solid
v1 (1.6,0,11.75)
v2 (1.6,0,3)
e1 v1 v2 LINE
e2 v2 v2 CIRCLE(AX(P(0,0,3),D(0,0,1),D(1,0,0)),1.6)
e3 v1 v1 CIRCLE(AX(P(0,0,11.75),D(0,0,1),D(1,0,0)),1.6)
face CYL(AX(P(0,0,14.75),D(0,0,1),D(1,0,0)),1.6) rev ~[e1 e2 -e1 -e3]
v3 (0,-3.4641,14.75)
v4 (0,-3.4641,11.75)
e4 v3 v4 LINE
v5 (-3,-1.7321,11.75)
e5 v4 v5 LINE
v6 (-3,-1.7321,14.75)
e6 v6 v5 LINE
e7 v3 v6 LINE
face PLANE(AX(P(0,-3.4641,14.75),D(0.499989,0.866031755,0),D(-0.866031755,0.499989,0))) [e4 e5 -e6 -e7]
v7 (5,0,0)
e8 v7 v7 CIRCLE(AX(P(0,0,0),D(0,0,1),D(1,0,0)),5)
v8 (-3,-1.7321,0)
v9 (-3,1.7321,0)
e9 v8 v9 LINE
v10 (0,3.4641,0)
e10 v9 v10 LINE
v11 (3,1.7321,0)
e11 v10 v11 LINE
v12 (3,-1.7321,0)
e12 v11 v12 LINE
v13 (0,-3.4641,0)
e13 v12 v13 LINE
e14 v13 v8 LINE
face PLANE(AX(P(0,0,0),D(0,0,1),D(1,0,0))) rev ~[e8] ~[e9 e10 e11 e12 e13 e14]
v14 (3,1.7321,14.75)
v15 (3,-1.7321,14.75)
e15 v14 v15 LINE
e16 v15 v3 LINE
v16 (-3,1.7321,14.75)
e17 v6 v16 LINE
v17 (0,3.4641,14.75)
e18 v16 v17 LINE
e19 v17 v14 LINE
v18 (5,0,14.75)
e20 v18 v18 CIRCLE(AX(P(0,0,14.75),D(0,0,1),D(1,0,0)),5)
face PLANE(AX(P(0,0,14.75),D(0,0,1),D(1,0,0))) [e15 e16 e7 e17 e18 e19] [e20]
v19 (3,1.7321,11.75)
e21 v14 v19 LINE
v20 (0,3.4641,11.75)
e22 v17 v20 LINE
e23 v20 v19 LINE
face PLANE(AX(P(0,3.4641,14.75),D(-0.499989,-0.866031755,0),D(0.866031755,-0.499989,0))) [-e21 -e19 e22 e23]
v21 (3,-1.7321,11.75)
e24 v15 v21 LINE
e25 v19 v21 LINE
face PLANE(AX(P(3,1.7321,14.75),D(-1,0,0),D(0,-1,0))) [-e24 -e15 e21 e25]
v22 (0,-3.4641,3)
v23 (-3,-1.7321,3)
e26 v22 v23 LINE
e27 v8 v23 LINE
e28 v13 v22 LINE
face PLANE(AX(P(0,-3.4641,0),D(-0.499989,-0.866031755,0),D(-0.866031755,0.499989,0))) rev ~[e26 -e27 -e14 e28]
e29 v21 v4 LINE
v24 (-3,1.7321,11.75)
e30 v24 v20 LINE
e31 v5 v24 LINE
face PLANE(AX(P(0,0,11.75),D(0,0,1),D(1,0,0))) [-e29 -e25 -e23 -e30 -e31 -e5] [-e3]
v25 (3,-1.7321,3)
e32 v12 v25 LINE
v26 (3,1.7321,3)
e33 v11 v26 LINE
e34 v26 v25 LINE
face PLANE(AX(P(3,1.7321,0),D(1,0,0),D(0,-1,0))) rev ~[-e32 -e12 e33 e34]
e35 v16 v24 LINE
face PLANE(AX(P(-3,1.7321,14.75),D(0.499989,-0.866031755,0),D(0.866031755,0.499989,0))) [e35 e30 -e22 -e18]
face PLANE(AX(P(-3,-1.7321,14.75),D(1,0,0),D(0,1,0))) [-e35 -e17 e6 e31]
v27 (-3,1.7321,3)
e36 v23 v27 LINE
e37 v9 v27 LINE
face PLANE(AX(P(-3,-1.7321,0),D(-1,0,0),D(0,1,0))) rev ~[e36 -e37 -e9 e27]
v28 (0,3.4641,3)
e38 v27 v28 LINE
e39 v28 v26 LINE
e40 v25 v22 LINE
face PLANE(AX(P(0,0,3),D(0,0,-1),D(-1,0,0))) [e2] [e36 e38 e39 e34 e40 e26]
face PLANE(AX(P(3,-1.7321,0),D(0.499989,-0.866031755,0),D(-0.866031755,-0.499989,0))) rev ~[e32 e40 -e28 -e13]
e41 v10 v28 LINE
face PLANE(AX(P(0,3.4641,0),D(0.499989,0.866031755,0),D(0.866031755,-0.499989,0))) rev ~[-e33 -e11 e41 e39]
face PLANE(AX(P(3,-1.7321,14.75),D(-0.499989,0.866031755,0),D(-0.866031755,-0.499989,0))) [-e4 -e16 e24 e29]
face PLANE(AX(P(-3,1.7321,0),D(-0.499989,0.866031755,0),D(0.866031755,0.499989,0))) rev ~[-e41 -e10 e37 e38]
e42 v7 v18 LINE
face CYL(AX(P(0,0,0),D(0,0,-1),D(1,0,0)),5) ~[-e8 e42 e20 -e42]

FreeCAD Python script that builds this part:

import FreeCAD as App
import Part
import Sketcher
from FreeCAD import Vector
Q = App.Units.Quantity


def add_polygon(sketch, points):
    """Adds a closed chain of lines whose ends are joined by coincident constraints."""
    first, n = sketch.GeometryCount, len(points)
    for a, b in zip(points, points[1:] + points[:1]):
        sketch.addGeometry(Part.LineSegment(App.Vector(*a, 0), App.Vector(*b, 0)), False)
    for i in range(n):
        sketch.addConstraint(Sketcher.Constraint("Coincident", first + i, 2, first + (i + 1) % n, 1))

doc = App.newDocument("Part")
body = doc.addObject("PartDesign::Body", "Body")

# Sketch on XY plane
sketch1 = body.newObject("Sketcher::SketchObject", "Sketch")
sketch1.AttachmentSupport = (doc.getObject("XY_Plane"), [""])
sketch1.MapMode = "FlatFace"
sketch1.addGeometry(Part.Circle(Vector(0, 0, 0), Vector(0, 0, 1), 5), False)
sketch1.addConstraint(Sketcher.Constraint("Coincident", 0, 3, -1, 1))
sketch1.addConstraint(Sketcher.Constraint("Diameter", 0, 10.0))
pad1 = body.newObject("PartDesign::Pad", "Pad")
pad1.Profile = sketch1
pad1.Length = 14.75

# Sketch on XY plane
sketch2 = body.newObject("Sketcher::SketchObject", "Sketch001")
sketch2.AttachmentSupport = (doc.getObject("XY_Plane"), [""])
sketch2.MapMode = "FlatFace"
sketch2.AttachmentOffset = App.Placement(Vector(0, 0, 14.75), App.Rotation())
sketch2.addGeometry(Part.Circle(Vector(0, 0, 0), Vector(0, 0, 1), 1.6), False)
sketch2.addConstraint(Sketcher.Constraint("Coincident", 0, 3, -1, 1))
sketch2.addConstraint(Sketcher.Constraint("Diameter", 0, 3.2))
pocket1 = body.newObject("PartDesign::Pocket", "Pocket")
pocket1.Profile = sketch2
pocket1.Length = 14.75

# Sketch on XY plane
sketch3 = body.newObject("Sketcher::SketchObject", "Sketch002")
sketch3.AttachmentSupport = (doc.getObject("XY_Plane"), [""])
sketch3.MapMode = "FlatFace"
sketch3.AttachmentOffset = App.Placement(Vector(0, 0, 14.75), App.Rotation())
add_polygon(sketch3, [(3, 1.7), (0, 3.5), (-3, 1.7), (-3, -1.7), (0, -3.5), (3, -1.7)])  # lines 0-5
sketch3.addConstraint(Sketcher.Constraint("Vertical", 2))
sketch3.addConstraint(Sketcher.Constraint("Vertical", 5))
sketch3.addConstraint(Sketcher.Constraint("Symmetric", 0, 2, 3, 2, -1, 1))
sketch3.addConstraint(Sketcher.Constraint("Symmetric", 1, 2, 4, 2, -1, 1))
sketch3.addConstraint(Sketcher.Constraint("PointOnObject", 0, 2, -2))
sketch3.addConstraint(Sketcher.Constraint("Parallel", 0, 3))
sketch3.addConstraint(Sketcher.Constraint("Horizontal", 2, 2, 4, 2))
sketch3.addConstraint(Sketcher.Constraint("DistanceX", 2, 2, 4, 2, 6.0))
sketch3.addConstraint(Sketcher.Constraint("Angle", 0, Q("150.0007 deg")))
sketch3.addConstraint(Sketcher.Constraint("DistanceY", 2, 2, 2, 1, 3.4642))
pocket2 = body.newObject("PartDesign::Pocket", "Pocket001")
pocket2.Profile = sketch3
pocket2.Length = 3

# Sketch on XY plane
sketch4 = body.newObject("Sketcher::SketchObject", "Sketch003")
sketch4.AttachmentSupport = (doc.getObject("XY_Plane"), [""])
sketch4.MapMode = "FlatFace"
add_polygon(sketch4, [(-3, 1.7), (0, 3.5), (3, 1.7), (3, -1.7), (0, -3.5), (-3, -1.7)])  # lines 0-5
sketch4.addGeometry(Part.Circle(Vector(0, 0, 0), Vector(0, 0, 1), 1.6), False)  # 6
sketch4.addConstraint(Sketcher.Constraint("Vertical", 2))
sketch4.addConstraint(Sketcher.Constraint("Vertical", 5))
sketch4.addConstraint(Sketcher.Constraint("Coincident", 6, 3, -1, 1))
sketch4.addConstraint(Sketcher.Constraint("Symmetric", 0, 2, 3, 2, -1, 1))
sketch4.addConstraint(Sketcher.Constraint("Symmetric", 1, 2, 4, 2, -1, 1))
sketch4.addConstraint(Sketcher.Constraint("PointOnObject", 0, 2, -2))
sketch4.addConstraint(Sketcher.Constraint("Parallel", 0, 3))
sketch4.addConstraint(Sketcher.Constraint("Horizontal", 2, 2, 4, 2))
sketch4.addConstraint(Sketcher.Constraint("Diameter", 6, 3.2))
sketch4.addConstraint(Sketcher.Constraint("Angle", 0, Q("29.9993 deg")))
sketch4.addConstraint(Sketcher.Constraint("DistanceX", -1, 1, 1, 2, 3.0))
sketch4.addConstraint(Sketcher.Constraint("DistanceY", 2, 2, 2, 1, 3.4642))
pocket3 = body.newObject("PartDesign::Pocket", "Pocket002")
pocket3.Profile = sketch4
pocket3.Length = 3
pocket3.Reversed = True

doc.recompute()
